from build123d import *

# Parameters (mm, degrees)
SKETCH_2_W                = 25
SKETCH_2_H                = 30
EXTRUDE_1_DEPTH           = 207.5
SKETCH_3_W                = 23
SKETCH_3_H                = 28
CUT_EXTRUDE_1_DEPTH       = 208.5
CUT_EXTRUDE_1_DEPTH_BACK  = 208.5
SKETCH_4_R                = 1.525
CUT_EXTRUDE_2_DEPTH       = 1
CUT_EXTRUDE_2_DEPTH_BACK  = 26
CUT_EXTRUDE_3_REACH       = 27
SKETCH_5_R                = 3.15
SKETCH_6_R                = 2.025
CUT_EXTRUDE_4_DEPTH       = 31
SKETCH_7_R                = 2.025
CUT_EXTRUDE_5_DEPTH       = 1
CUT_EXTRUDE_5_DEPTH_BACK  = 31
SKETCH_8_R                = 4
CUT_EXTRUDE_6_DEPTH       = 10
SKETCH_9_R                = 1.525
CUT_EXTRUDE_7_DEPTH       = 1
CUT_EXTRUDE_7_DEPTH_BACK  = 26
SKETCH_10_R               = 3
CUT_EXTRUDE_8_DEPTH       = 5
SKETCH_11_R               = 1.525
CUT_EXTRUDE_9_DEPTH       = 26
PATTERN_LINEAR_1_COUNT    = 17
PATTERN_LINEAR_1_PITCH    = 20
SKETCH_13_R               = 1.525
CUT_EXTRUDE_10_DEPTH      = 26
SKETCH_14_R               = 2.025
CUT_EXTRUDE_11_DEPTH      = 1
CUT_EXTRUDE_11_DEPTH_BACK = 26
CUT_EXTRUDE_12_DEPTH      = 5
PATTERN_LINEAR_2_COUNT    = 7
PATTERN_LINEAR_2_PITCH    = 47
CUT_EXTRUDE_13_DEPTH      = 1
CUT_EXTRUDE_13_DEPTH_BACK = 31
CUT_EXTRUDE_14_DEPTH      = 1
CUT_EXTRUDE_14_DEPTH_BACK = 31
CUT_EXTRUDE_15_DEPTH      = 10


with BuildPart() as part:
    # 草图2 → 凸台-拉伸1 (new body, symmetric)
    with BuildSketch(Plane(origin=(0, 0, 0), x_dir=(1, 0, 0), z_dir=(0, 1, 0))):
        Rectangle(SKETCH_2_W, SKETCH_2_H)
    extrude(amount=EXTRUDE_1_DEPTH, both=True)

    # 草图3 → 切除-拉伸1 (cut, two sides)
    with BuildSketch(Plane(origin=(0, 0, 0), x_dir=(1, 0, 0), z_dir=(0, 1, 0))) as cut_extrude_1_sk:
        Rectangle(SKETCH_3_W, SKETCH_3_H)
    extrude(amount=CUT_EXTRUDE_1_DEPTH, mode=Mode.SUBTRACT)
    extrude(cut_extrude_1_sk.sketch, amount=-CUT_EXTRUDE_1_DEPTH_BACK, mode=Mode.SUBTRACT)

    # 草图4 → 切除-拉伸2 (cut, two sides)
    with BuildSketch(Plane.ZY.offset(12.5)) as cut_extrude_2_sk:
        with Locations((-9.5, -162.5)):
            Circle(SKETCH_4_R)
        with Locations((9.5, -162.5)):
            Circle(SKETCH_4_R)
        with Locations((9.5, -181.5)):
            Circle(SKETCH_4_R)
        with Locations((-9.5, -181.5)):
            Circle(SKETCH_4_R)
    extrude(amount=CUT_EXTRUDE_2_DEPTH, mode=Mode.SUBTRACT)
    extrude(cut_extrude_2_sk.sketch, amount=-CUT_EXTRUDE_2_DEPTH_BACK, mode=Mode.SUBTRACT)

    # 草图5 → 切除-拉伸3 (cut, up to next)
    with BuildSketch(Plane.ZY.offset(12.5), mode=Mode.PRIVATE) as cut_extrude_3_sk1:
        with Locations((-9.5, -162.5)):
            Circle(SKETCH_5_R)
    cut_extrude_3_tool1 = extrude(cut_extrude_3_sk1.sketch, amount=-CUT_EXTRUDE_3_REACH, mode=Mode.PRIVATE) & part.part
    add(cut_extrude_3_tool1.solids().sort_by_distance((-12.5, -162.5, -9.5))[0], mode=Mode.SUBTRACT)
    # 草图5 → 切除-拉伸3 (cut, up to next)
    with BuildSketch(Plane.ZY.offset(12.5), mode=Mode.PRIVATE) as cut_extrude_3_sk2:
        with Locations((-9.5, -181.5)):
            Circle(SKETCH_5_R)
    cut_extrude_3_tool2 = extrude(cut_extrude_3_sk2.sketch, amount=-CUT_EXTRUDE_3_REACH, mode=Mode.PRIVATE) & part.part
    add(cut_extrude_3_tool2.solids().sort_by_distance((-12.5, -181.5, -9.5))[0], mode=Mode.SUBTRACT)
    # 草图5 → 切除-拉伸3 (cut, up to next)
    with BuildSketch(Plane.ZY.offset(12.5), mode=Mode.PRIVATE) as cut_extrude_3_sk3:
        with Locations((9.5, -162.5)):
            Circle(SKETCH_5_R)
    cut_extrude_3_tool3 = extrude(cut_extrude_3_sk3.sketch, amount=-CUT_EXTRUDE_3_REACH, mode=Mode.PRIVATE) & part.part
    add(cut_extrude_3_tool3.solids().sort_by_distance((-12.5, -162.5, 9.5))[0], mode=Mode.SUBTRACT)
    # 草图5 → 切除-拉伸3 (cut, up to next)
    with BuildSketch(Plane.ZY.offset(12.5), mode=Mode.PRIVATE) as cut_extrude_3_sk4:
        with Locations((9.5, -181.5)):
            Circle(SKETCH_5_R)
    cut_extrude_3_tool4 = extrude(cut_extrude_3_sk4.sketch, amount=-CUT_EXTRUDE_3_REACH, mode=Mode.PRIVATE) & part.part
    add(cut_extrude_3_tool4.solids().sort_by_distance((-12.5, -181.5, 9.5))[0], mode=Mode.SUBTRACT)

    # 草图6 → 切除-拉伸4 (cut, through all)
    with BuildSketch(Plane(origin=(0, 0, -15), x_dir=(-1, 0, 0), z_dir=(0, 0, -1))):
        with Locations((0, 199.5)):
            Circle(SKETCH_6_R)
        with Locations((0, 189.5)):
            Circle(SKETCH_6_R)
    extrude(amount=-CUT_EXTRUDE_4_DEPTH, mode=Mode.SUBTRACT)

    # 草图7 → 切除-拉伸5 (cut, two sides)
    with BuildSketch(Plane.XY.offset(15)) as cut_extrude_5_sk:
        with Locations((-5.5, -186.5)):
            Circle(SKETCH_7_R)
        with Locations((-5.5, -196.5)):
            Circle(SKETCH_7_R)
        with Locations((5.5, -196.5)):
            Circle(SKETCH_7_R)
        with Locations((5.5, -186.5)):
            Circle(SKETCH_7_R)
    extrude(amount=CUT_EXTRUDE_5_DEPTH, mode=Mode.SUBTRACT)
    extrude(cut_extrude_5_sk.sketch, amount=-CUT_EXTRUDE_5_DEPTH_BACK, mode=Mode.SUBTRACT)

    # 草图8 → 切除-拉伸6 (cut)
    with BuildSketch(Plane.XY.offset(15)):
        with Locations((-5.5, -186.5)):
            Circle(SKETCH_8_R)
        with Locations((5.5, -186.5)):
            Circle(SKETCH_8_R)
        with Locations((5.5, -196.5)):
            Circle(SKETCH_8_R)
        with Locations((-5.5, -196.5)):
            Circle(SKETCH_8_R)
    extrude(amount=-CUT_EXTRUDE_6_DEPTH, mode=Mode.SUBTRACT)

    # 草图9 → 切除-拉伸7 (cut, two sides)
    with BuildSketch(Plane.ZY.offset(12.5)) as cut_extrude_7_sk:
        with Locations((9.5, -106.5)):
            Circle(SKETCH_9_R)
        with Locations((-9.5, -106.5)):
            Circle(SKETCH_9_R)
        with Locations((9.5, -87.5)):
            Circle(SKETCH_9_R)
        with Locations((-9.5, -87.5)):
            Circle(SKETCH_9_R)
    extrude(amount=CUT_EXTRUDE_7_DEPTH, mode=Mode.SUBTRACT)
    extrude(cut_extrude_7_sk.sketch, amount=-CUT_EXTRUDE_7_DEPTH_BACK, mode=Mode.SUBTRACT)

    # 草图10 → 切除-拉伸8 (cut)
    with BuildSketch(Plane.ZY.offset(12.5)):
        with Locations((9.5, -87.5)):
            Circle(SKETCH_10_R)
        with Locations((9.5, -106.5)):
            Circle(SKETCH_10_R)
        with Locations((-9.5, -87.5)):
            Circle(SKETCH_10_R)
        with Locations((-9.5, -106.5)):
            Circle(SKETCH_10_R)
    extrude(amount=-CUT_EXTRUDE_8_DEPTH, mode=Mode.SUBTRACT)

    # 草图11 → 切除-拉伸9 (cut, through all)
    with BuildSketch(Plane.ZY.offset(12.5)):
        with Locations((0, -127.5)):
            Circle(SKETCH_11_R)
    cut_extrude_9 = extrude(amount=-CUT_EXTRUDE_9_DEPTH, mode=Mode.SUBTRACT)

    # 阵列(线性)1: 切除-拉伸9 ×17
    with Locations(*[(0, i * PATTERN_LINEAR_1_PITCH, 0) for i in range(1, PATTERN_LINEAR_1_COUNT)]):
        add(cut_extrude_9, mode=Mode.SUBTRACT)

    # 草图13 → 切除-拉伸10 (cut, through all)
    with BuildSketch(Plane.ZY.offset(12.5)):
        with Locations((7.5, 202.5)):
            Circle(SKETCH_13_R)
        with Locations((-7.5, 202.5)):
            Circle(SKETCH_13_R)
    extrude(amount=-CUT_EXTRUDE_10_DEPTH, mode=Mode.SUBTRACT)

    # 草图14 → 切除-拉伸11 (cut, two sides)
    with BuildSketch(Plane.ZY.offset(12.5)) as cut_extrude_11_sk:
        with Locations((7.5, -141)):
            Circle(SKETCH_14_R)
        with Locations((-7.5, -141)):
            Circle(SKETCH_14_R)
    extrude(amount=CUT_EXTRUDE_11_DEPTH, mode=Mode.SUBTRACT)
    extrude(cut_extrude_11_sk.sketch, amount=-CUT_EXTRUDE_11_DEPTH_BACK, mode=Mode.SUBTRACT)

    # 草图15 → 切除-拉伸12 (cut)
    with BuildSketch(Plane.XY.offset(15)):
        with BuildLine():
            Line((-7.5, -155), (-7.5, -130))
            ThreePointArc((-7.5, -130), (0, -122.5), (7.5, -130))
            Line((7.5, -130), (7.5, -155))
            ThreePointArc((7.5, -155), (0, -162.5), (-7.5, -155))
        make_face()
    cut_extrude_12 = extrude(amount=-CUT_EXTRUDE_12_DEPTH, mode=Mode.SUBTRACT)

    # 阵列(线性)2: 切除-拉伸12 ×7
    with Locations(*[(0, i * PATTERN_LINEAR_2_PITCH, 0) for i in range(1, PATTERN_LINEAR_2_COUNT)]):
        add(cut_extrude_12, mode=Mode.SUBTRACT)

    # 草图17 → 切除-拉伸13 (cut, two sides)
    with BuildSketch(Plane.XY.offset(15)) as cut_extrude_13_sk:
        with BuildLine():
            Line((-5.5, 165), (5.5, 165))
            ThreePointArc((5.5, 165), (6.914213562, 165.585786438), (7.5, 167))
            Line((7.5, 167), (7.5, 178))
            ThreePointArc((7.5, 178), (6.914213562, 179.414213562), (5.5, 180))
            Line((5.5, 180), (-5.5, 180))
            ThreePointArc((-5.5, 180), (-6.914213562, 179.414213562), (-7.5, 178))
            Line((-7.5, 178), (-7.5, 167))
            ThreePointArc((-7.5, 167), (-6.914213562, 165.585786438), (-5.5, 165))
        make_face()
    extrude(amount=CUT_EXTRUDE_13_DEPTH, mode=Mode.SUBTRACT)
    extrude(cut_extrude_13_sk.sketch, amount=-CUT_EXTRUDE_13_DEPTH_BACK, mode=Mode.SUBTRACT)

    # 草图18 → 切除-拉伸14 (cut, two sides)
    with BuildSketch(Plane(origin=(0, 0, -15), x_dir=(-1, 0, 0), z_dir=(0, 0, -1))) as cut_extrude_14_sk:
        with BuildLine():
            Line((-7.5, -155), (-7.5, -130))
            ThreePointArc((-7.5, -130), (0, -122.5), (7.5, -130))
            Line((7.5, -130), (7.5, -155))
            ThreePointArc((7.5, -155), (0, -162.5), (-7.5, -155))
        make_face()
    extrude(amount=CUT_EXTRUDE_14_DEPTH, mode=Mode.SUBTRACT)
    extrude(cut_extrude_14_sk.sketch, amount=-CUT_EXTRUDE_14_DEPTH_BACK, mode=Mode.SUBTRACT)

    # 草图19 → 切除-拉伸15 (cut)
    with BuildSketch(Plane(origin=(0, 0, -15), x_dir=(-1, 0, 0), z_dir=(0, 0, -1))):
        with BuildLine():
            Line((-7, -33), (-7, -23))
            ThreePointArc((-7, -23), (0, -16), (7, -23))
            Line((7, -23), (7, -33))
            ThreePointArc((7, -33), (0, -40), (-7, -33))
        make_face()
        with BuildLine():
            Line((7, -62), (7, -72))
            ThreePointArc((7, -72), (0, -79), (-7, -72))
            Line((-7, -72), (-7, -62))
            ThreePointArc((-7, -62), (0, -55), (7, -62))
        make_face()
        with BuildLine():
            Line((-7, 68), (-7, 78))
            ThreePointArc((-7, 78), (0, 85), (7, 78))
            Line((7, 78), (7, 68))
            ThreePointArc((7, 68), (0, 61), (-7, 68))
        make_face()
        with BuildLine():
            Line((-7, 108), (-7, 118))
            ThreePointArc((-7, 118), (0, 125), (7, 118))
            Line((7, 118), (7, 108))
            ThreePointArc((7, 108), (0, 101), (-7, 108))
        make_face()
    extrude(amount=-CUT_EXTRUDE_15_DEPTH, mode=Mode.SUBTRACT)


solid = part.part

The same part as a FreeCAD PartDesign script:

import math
import FreeCAD as App
import Part
import Sketcher
from FreeCAD import Vector


def add_polygon(sketch, points):
    """Adds a closed chain of lines whose ends are joined by coincident constraints."""
    first, n = sketch.GeometryCount, len(points)
    for a, b in zip(points, points[1:] + points[:1]):
        sketch.addGeometry(Part.LineSegment(App.Vector(*a, 0), App.Vector(*b, 0)), False)
    for i in range(n):
        sketch.addConstraint(Sketcher.Constraint("Coincident", first + i, 2, first + (i + 1) % n, 1))

doc = App.newDocument("Part")
body = doc.addObject("PartDesign::Body", "Body")

# Sketch on XZ plane
sketch1 = doc.addObject("Sketcher::SketchObject", "Sketch")
body.addObject(sketch1)
sketch1.AttachmentSupport = (doc.XZ_Plane, [""])
sketch1.MapMode = "FlatFace"
add_polygon(sketch1, [(-12, -15), (-12, 15), (12, 15), (12, -15)])  # lines 0-3
sketch1.addConstraint([
    Sketcher.Constraint("Vertical", 0),
    Sketcher.Constraint("Horizontal", 1),
    Sketcher.Constraint("Vertical", 2),
    Sketcher.Constraint("Horizontal", 3),
    Sketcher.Constraint("Symmetric", 0, 2, 2, 2, -1, 1),
    Sketcher.Constraint("DistanceX", 1, 1, 1, 2, 25.0),
    Sketcher.Constraint("DistanceY", 0, 1, 0, 2, 30.0),
])
pad1 = doc.addObject("PartDesign::Pad", "Pad")
body.addObject(pad1)
pad1.Profile = sketch1
pad1.Length = 415
pad1.Midplane = True

# Sketch on XZ plane
sketch2 = doc.addObject("Sketcher::SketchObject", "Sketch001")
body.addObject(sketch2)
sketch2.AttachmentSupport = (doc.XZ_Plane, [""])
sketch2.MapMode = "FlatFace"
add_polygon(sketch2, [(-12, -14), (-12, 14), (12, 14), (12, -14)])  # lines 0-3
sketch2.addConstraint([
    Sketcher.Constraint("Vertical", 0),
    Sketcher.Constraint("Horizontal", 1),
    Sketcher.Constraint("Vertical", 2),
    Sketcher.Constraint("Horizontal", 3),
    Sketcher.Constraint("Symmetric", 0, 2, 2, 2, -1, 1),
    Sketcher.Constraint("DistanceX", 1, 1, 1, 2, 23.0),
    Sketcher.Constraint("DistanceY", 0, 1, 0, 2, 28.0),
])
pocket1 = doc.addObject("PartDesign::Pocket", "Pocket")
body.addObject(pocket1)
pocket1.Profile = sketch2
pocket1.Type = "ThroughAll"
pocket1.Midplane = True

# Sketch on YZ plane
sketch3 = doc.addObject("Sketcher::SketchObject", "Sketch002")
body.addObject(sketch3)
sketch3.AttachmentSupport = (doc.YZ_Plane, [""])
sketch3.MapMode = "FlatFace"
sketch3.AttachmentOffset = App.Placement(Vector(0, 0, -12.5), App.Rotation())
sketch3.addGeometry([
    Part.Circle(Vector(-162.5, -9.5, 0), Vector(0, 0, 1), 1.5),
    Part.Circle(Vector(-162.5, 9.5, 0), Vector(0, 0, 1), 1.5),
    Part.Circle(Vector(-181.5, 9.5, 0), Vector(0, 0, 1), 1.5),
    Part.Circle(Vector(-181.5, -9.5, 0), Vector(0, 0, 1), 1.5),
], False)
sketch3.addConstraint([
    Sketcher.Constraint("Equal", 0, 1),
    Sketcher.Constraint("Equal", 1, 2),
    Sketcher.Constraint("Equal", 2, 3),
    Sketcher.Constraint("Symmetric", 0, 3, 1, 3, -1),
    Sketcher.Constraint("Symmetric", 2, 3, 3, 3, -1),
    Sketcher.Constraint("Horizontal", 1, 3, 2, 3),
    Sketcher.Constraint("Diameter", 0, 3.05),
    Sketcher.Constraint("DistanceY", 0, 3, 1, 3, 19.0),
    Sketcher.Constraint("DistanceX", 2, 3, 1, 3, 19.0),
    Sketcher.Constraint("DistanceX", 0, 3, -1, 1, 162.5),
])
pocket2 = doc.addObject("PartDesign::Pocket", "Pocket001")
body.addObject(pocket2)
pocket2.Profile = sketch3
pocket2.Type = "ThroughAll"
pocket2.Midplane = True

# Sketch on YZ plane
sketch4 = doc.addObject("Sketcher::SketchObject", "Sketch003")
body.addObject(sketch4)
sketch4.AttachmentSupport = (doc.YZ_Plane, [""])
sketch4.MapMode = "FlatFace"
sketch4.AttachmentOffset = App.Placement(Vector(0, 0, -12.5), App.Rotation())
sketch4.addGeometry(Part.Circle(Vector(-162.5, -9.5, 0), Vector(0, 0, 1), 3.1), False)
sketch4.addConstraint([
    Sketcher.Constraint("Diameter", 0, 6.3),
    Sketcher.Constraint("DistanceX", 0, 3, -1, 1, 162.5),
    Sketcher.Constraint("DistanceY", 0, 3, -1, 1, 9.5),
])
pocket3 = doc.addObject("PartDesign::Pocket", "Pocket002")
body.addObject(pocket3)
pocket3.Profile = sketch4
pocket3.Length = 1
pocket3.Reversed = True

# Sketch on YZ plane
sketch5 = doc.addObject("Sketcher::SketchObject", "Sketch004")
body.addObject(sketch5)
sketch5.AttachmentSupport = (doc.YZ_Plane, [""])
sketch5.MapMode = "FlatFace"
sketch5.AttachmentOffset = App.Placement(Vector(0, 0, -12.5), App.Rotation())
sketch5.addGeometry(Part.Circle(Vector(-181.5, -9.5, 0), Vector(0, 0, 1), 3.1), False)
sketch5.addConstraint([
    Sketcher.Constraint("Diameter", 0, 6.3),
    Sketcher.Constraint("DistanceX", 0, 3, -1, 1, 181.5),
    Sketcher.Constraint("DistanceY", 0, 3, -1, 1, 9.5),
])
pocket4 = doc.addObject("PartDesign::Pocket", "Pocket003")
body.addObject(pocket4)
pocket4.Profile = sketch5
pocket4.Length = 1
pocket4.Reversed = True

# Sketch on YZ plane
sketch6 = doc.addObject("Sketcher::SketchObject", "Sketch005")
body.addObject(sketch6)
sketch6.AttachmentSupport = (doc.YZ_Plane, [""])
sketch6.MapMode = "FlatFace"
sketch6.AttachmentOffset = App.Placement(Vector(0, 0, -12.5), App.Rotation())
sketch6.addGeometry(Part.Circle(Vector(-162.5, 9.5, 0), Vector(0, 0, 1), 3.1), False)
sketch6.addConstraint([
    Sketcher.Constraint("Diameter", 0, 6.3),
    Sketcher.Constraint("DistanceX", 0, 3, -1, 1, 162.5),
    Sketcher.Constraint("DistanceY", -1, 1, 0, 3, 9.5),
])
pocket5 = doc.addObject("PartDesign::Pocket", "Pocket004")
body.addObject(pocket5)
pocket5.Profile = sketch6
pocket5.Length = 1
pocket5.Reversed = True

# Sketch on YZ plane
sketch7 = doc.addObject("Sketcher::SketchObject", "Sketch006")
body.addObject(sketch7)
sketch7.AttachmentSupport = (doc.YZ_Plane, [""])
sketch7.MapMode = "FlatFace"
sketch7.AttachmentOffset = App.Placement(Vector(0, 0, -12.5), App.Rotation())
sketch7.addGeometry(Part.Circle(Vector(-181.5, 9.5, 0), Vector(0, 0, 1), 3.1), False)
sketch7.addConstraint([
    Sketcher.Constraint("Diameter", 0, 6.3),
    Sketcher.Constraint("DistanceX", 0, 3, -1, 1, 181.5),
    Sketcher.Constraint("DistanceY", -1, 1, 0, 3, 9.5),
])
pocket6 = doc.addObject("PartDesign::Pocket", "Pocket005")
body.addObject(pocket6)
pocket6.Profile = sketch7
pocket6.Length = 1
pocket6.Reversed = True

# Sketch on XY plane
sketch8 = doc.addObject("Sketcher::SketchObject", "Sketch007")
body.addObject(sketch8)
sketch8.AttachmentSupport = (doc.XY_Plane, [""])
sketch8.MapMode = "FlatFace"
sketch8.AttachmentOffset = App.Placement(Vector(0, 0, -15), App.Rotation())
sketch8.addGeometry([
    Part.Circle(Vector(0, 199.5, 0), Vector(0, 0, 1), 2),
    Part.Circle(Vector(0, 189.5, 0), Vector(0, 0, 1), 2),
], False)
sketch8.addConstraint([
    Sketcher.Constraint("Equal", 0, 1),
    Sketcher.Constraint("PointOnObject", 0, 3, -2),
    Sketcher.Constraint("PointOnObject", 1, 3, -2),
    Sketcher.Constraint("Diameter", 0, 4.05),
    Sketcher.Constraint("DistanceY", 1, 3, 0, 3, 10.0),
    Sketcher.Constraint("DistanceY", -1, 1, 0, 3, 199.5),
])
pocket7 = doc.addObject("PartDesign::Pocket", "Pocket006")
body.addObject(pocket7)
pocket7.Profile = sketch8
pocket7.Type = "ThroughAll"
pocket7.Reversed = True

# Sketch on XY plane
sketch9 = doc.addObject("Sketcher::SketchObject", "Sketch008")
body.addObject(sketch9)
sketch9.AttachmentSupport = (doc.XY_Plane, [""])
sketch9.MapMode = "FlatFace"
sketch9.AttachmentOffset = App.Placement(Vector(0, 0, 15), App.Rotation())
sketch9.addGeometry([
    Part.Circle(Vector(-5.5, -186.5, 0), Vector(0, 0, 1), 2),
    Part.Circle(Vector(-5.5, -196.5, 0), Vector(0, 0, 1), 2),
    Part.Circle(Vector(5.5, -196.5, 0), Vector(0, 0, 1), 2),
    Part.Circle(Vector(5.5, -186.5, 0), Vector(0, 0, 1), 2),
], False)
sketch9.addConstraint([
    Sketcher.Constraint("Equal", 0, 1),
    Sketcher.Constraint("Equal", 1, 2),
    Sketcher.Constraint("Equal", 2, 3),
    Sketcher.Constraint("Symmetric", 1, 3, 2, 3, -2),
    Sketcher.Constraint("Symmetric", 0, 3, 3, 3, -2),
    Sketcher.Constraint("Vertical", 0, 3, 1, 3),
    Sketcher.Constraint("Diameter", 0, 4.05),
    Sketcher.Constraint("DistanceY", 1, 3, 0, 3, 10.0),
    Sketcher.Constraint("DistanceX", 1, 3, 2, 3, 11.0),
    Sketcher.Constraint("DistanceY", 0, 3, -1, 1, 186.5),
])
pocket8 = doc.addObject("PartDesign::Pocket", "Pocket007")
body.addObject(pocket8)
pocket8.Profile = sketch9
pocket8.Type = "ThroughAll"
pocket8.Midplane = True

# Sketch on XY plane
sketch10 = doc.addObject("Sketcher::SketchObject", "Sketch009")
body.addObject(sketch10)
sketch10.AttachmentSupport = (doc.XY_Plane, [""])
sketch10.MapMode = "FlatFace"
sketch10.AttachmentOffset = App.Placement(Vector(0, 0, 15), App.Rotation())
sketch10.addGeometry([
    Part.Circle(Vector(-5.5, -186.5, 0), Vector(0, 0, 1), 4),
    Part.Circle(Vector(5.5, -186.5, 0), Vector(0, 0, 1), 4),
    Part.Circle(Vector(5.5, -196.5, 0), Vector(0, 0, 1), 4),
    Part.Circle(Vector(-5.5, -196.5, 0), Vector(0, 0, 1), 4),
], False)
sketch10.addConstraint([
    Sketcher.Constraint("Equal", 0, 1),
    Sketcher.Constraint("Equal", 1, 2),
    Sketcher.Constraint("Equal", 2, 3),
    Sketcher.Constraint("Symmetric", 0, 3, 1, 3, -2),
    Sketcher.Constraint("Symmetric", 2, 3, 3, 3, -2),
    Sketcher.Constraint("Vertical", 1, 3, 2, 3),
    Sketcher.Constraint("Diameter", 0, 8.0),
    Sketcher.Constraint("DistanceX", 0, 3, 1, 3, 11.0),
    Sketcher.Constraint("DistanceY", 2, 3, 1, 3, 10.0),
    Sketcher.Constraint("DistanceY", 0, 3, -1, 1, 186.5),
])
pocket9 = doc.addObject("PartDesign::Pocket", "Pocket008")
body.addObject(pocket9)
pocket9.Profile = sketch10
pocket9.Length = 10

# Sketch on YZ plane
sketch11 = doc.addObject("Sketcher::SketchObject", "Sketch010")
body.addObject(sketch11)
sketch11.AttachmentSupport = (doc.YZ_Plane, [""])
sketch11.MapMode = "FlatFace"
sketch11.AttachmentOffset = App.Placement(Vector(0, 0, -12.5), App.Rotation())
sketch11.addGeometry([
    Part.Circle(Vector(-106.5, 9.5, 0), Vector(0, 0, 1), 1.5),
    Part.Circle(Vector(-106.5, -9.5, 0), Vector(0, 0, 1), 1.5),
    Part.Circle(Vector(-87.5, 9.5, 0), Vector(0, 0, 1), 1.5),
    Part.Circle(Vector(-87.5, -9.5, 0), Vector(0, 0, 1), 1.5),
], False)
sketch11.addConstraint([
    Sketcher.Constraint("Equal", 0, 1),
    Sketcher.Constraint("Equal", 1, 2),
    Sketcher.Constraint("Equal", 2, 3),
    Sketcher.Constraint("Symmetric", 0, 3, 1, 3, -1),
    Sketcher.Constraint("Symmetric", 2, 3, 3, 3, -1),
    Sketcher.Constraint("Horizontal", 0, 3, 2, 3),
    Sketcher.Constraint("Diameter", 0, 3.05),
    Sketcher.Constraint("DistanceY", 1, 3, 0, 3, 19.0),
    Sketcher.Constraint("DistanceX", 0, 3, 2, 3, 19.0),
    Sketcher.Constraint("DistanceX", 0, 3, -1, 1, 106.5),
])
pocket10 = doc.addObject("PartDesign::Pocket", "Pocket009")
body.addObject(pocket10)
pocket10.Profile = sketch11
pocket10.Type = "ThroughAll"
pocket10.Midplane = True

# Sketch on YZ plane
sketch12 = doc.addObject("Sketcher::SketchObject", "Sketch011")
body.addObject(sketch12)
sketch12.AttachmentSupport = (doc.YZ_Plane, [""])
sketch12.MapMode = "FlatFace"
sketch12.AttachmentOffset = App.Placement(Vector(0, 0, -12.5), App.Rotation())
sketch12.addGeometry([
    Part.Circle(Vector(-87.5, 9.5, 0), Vector(0, 0, 1), 3),
    Part.Circle(Vector(-106.5, 9.5, 0), Vector(0, 0, 1), 3),
    Part.Circle(Vector(-87.5, -9.5, 0), Vector(0, 0, 1), 3),
    Part.Circle(Vector(-106.5, -9.5, 0), Vector(0, 0, 1), 3),
], False)
sketch12.addConstraint([
    Sketcher.Constraint("Equal", 0, 1),
    Sketcher.Constraint("Equal", 1, 2),
    Sketcher.Constraint("Equal", 2, 3),
    Sketcher.Constraint("Symmetric", 0, 3, 2, 3, -1),
    Sketcher.Constraint("Symmetric", 1, 3, 3, 3, -1),
    Sketcher.Constraint("Horizontal", 0, 3, 1, 3),
    Sketcher.Constraint("Diameter", 0, 6.0),
    Sketcher.Constraint("DistanceX", 1, 3, 0, 3, 19.0),
    Sketcher.Constraint("DistanceY", 2, 3, 0, 3, 19.0),
    Sketcher.Constraint("DistanceX", 0, 3, -1, 1, 87.5),
])
pocket11 = doc.addObject("PartDesign::Pocket", "Pocket010")
body.addObject(pocket11)
pocket11.Profile = sketch12
pocket11.Length = 5
pocket11.Reversed = True

# Sketch on YZ plane
sketch13 = doc.addObject("Sketcher::SketchObject", "Sketch012")
body.addObject(sketch13)
sketch13.AttachmentSupport = (doc.YZ_Plane, [""])
sketch13.MapMode = "FlatFace"
sketch13.AttachmentOffset = App.Placement(Vector(0, 0, -12.5), App.Rotation())
sketch13.addGeometry(Part.Circle(Vector(-127.5, 0, 0), Vector(0, 0, 1), 1.5), False)
sketch13.addConstraint([
    Sketcher.Constraint("PointOnObject", 0, 3, -1),
    Sketcher.Constraint("Diameter", 0, 3.05),
    Sketcher.Constraint("DistanceX", 0, 3, -1, 1, 127.5),
])
pocket12 = doc.addObject("PartDesign::Pocket", "Pocket011")
body.addObject(pocket12)
pocket12.Profile = sketch13
pocket12.Type = "ThroughAll"
pocket12.Reversed = True
doc.recompute()

linearpattern = doc.addObject("PartDesign::LinearPattern", "LinearPattern")
body.addObject(linearpattern)
linearpattern.Originals = [pocket12]
linearpattern.Direction = (doc.Y_Axis, [""])
linearpattern.Mode = "offset"
linearpattern.Offset = 20
linearpattern.Occurrences = 17
body.Tip = linearpattern

# Sketch on YZ plane
sketch14 = doc.addObject("Sketcher::SketchObject", "Sketch013")
body.addObject(sketch14)
sketch14.AttachmentSupport = (doc.YZ_Plane, [""])
sketch14.MapMode = "FlatFace"
sketch14.AttachmentOffset = App.Placement(Vector(0, 0, -12.5), App.Rotation())
sketch14.addGeometry([
    Part.Circle(Vector(202.5, 7.5, 0), Vector(0, 0, 1), 1.5),
    Part.Circle(Vector(202.5, -7.5, 0), Vector(0, 0, 1), 1.5),
], False)
sketch14.addConstraint([
    Sketcher.Constraint("Equal", 0, 1),
    Sketcher.Constraint("Symmetric", 0, 3, 1, 3, -1),
    Sketcher.Constraint("Diameter", 0, 3.05),
    Sketcher.Constraint("DistanceY", 1, 3, 0, 3, 15.0),
    Sketcher.Constraint("DistanceX", -1, 1, 0, 3, 202.5),
])
pocket13 = doc.addObject("PartDesign::Pocket", "Pocket012")
body.addObject(pocket13)
pocket13.Profile = sketch14
pocket13.Type = "ThroughAll"
pocket13.Reversed = True

# Sketch on YZ plane
sketch15 = doc.addObject("Sketcher::SketchObject", "Sketch014")
body.addObject(sketch15)
sketch15.AttachmentSupport = (doc.YZ_Plane, [""])
sketch15.MapMode = "FlatFace"
sketch15.AttachmentOffset = App.Placement(Vector(0, 0, -12.5), App.Rotation())
sketch15.addGeometry([
    Part.Circle(Vector(-141, 7.5, 0), Vector(0, 0, 1), 2),
    Part.Circle(Vector(-141, -7.5, 0), Vector(0, 0, 1), 2),
], False)
sketch15.addConstraint([
    Sketcher.Constraint("Equal", 0, 1),
    Sketcher.Constraint("Symmetric", 0, 3, 1, 3, -1),
    Sketcher.Constraint("Diameter", 0, 4.05),
    Sketcher.Constraint("DistanceX", 0, 3, -1, 1, 141.0),
    Sketcher.Constraint("DistanceY", 1, 3, 0, 3, 15.0),
])
pocket14 = doc.addObject("PartDesign::Pocket", "Pocket013")
body.addObject(pocket14)
pocket14.Profile = sketch15
pocket14.Type = "ThroughAll"
pocket14.Midplane = True

# Sketch on XY plane
sketch16 = doc.addObject("Sketcher::SketchObject", "Sketch015")
body.addObject(sketch16)
sketch16.AttachmentSupport = (doc.XY_Plane, [""])
sketch16.MapMode = "FlatFace"
sketch16.AttachmentOffset = App.Placement(Vector(0, 0, 15), App.Rotation())
sketch16.addGeometry([
    Part.LineSegment(Vector(-8, -130, 0), Vector(-8, -155, 0)),
    Part.ArcOfCircle(Part.Circle(Vector(0, -155, 0), Vector(0, 0, 1), 8), math.radians(180), math.radians(360)),
    Part.LineSegment(Vector(8, -155, 0), Vector(8, -130, 0)),
    Part.ArcOfCircle(Part.Circle(Vector(0, -130, 0), Vector(0, 0, 1), 8), math.radians(0), math.radians(180)),
], False)
sketch16.addConstraint([
    Sketcher.Constraint("Tangent", 0, 2, 1, 1),
    Sketcher.Constraint("Tangent", 1, 2, 2, 1),
    Sketcher.Constraint("Tangent", 2, 2, 3, 1),
    Sketcher.Constraint("Tangent", 3, 2, 0, 1),
    Sketcher.Constraint("Vertical", 0),
    Sketcher.Constraint("Vertical", 2),
    Sketcher.Constraint("PointOnObject", 1, 3, -2),
    Sketcher.Constraint("Radius", 1, 7.5),
    Sketcher.Constraint("DistanceY", 0, 2, 0, 1, 25.0),
    Sketcher.Constraint("DistanceY", 1, 3, -1, 1, 155.0),
])
pocket15 = doc.addObject("PartDesign::Pocket", "Pocket014")
body.addObject(pocket15)
pocket15.Profile = sketch16
pocket15.Length = 5
doc.recompute()

linearpattern2 = doc.addObject("PartDesign::LinearPattern", "LinearPattern001")
body.addObject(linearpattern2)
linearpattern2.Originals = [pocket15]
linearpattern2.Direction = (doc.Y_Axis, [""])
linearpattern2.Mode = "offset"
linearpattern2.Offset = 47
linearpattern2.Occurrences = 7
body.Tip = linearpattern2

# Sketch on XY plane
sketch17 = doc.addObject("Sketcher::SketchObject", "Sketch016")
body.addObject(sketch17)
sketch17.AttachmentSupport = (doc.XY_Plane, [""])
sketch17.MapMode = "FlatFace"
sketch17.AttachmentOffset = App.Placement(Vector(0, 0, 15), App.Rotation())
sketch17.addGeometry([
    Part.LineSegment(Vector(-5.5, 165, 0), Vector(5.5, 165, 0)),  # 0
    Part.ArcOfCircle(Part.Circle(Vector(5.5, 167, 0), Vector(0, 0, 1), 2), math.radians(-90), math.radians(0)),  # 1
    Part.LineSegment(Vector(7.5, 167, 0), Vector(7.5, 178, 0)),  # 2
    Part.ArcOfCircle(Part.Circle(Vector(5.5, 178, 0), Vector(0, 0, 1), 2), math.radians(0), math.radians(90)),  # 3
    Part.LineSegment(Vector(5.5, 180, 0), Vector(-5.5, 180, 0)),  # 4
    Part.ArcOfCircle(Part.Circle(Vector(-5.5, 178, 0), Vector(0, 0, 1), 2), math.radians(90), math.radians(180)),  # 5
    Part.LineSegment(Vector(-7.5, 178, 0), Vector(-7.5, 167, 0)),  # 6
    Part.ArcOfCircle(Part.Circle(Vector(-5.5, 167, 0), Vector(0, 0, 1), 2), math.radians(-180), math.radians(-90)),  # 7
], False)
sketch17.addConstraint([
    Sketcher.Constraint("Tangent", 0, 2, 1, 1),
    Sketcher.Constraint("Tangent", 1, 2, 2, 1),
    Sketcher.Constraint("Tangent", 2, 2, 3, 1),
    Sketcher.Constraint("Tangent", 3, 2, 4, 1),
    Sketcher.Constraint("Tangent", 4, 2, 5, 1),
    Sketcher.Constraint("Tangent", 5, 2, 6, 1),
    Sketcher.Constraint("Tangent", 6, 2, 7, 1),
    Sketcher.Constraint("Tangent", 7, 2, 0, 1),
    Sketcher.Constraint("Horizontal", 0),
    Sketcher.Constraint("Vertical", 2),
    Sketcher.Constraint("Horizontal", 4),
    Sketcher.Constraint("Vertical", 6),
    Sketcher.Constraint("Equal", 1, 3),
    Sketcher.Constraint("Equal", 3, 5),
    Sketcher.Constraint("Equal", 5, 7),
    Sketcher.Constraint("Equal", 4, 2),
    Sketcher.Constraint("Radius", 1, 2.0),
    Sketcher.Constraint("DistanceX", 0, 1, 0, 2, 11.0),
    Sketcher.Constraint("DistanceY", -1, 1, 1, 3, 167.0),
    Sketcher.Constraint("DistanceX", -1, 1, 1, 3, 5.5),
])
pocket16 = doc.addObject("PartDesign::Pocket", "Pocket015")
body.addObject(pocket16)
pocket16.Profile = sketch17
pocket16.Type = "ThroughAll"
pocket16.Midplane = True

# Sketch on XY plane
sketch18 = doc.addObject("Sketcher::SketchObject", "Sketch017")
body.addObject(sketch18)
sketch18.AttachmentSupport = (doc.XY_Plane, [""])
sketch18.MapMode = "FlatFace"
sketch18.AttachmentOffset = App.Placement(Vector(0, 0, -15), App.Rotation())
sketch18.addGeometry([
    Part.LineSegment(Vector(8, -130, 0), Vector(8, -155, 0)),
    Part.ArcOfCircle(Part.Circle(Vector(0, -155, 0), Vector(0, 0, 1), 8), math.radians(180), math.radians(360)),
    Part.LineSegment(Vector(-8, -155, 0), Vector(-8, -130, 0)),
    Part.ArcOfCircle(Part.Circle(Vector(0, -130, 0), Vector(0, 0, 1), 8), math.radians(0), math.radians(180)),
], False)
sketch18.addConstraint([
    Sketcher.Constraint("Tangent", 0, 2, 1, 2),
    Sketcher.Constraint("Tangent", 1, 1, 2, 1),
    Sketcher.Constraint("Tangent", 2, 2, 3, 2),
    Sketcher.Constraint("Tangent", 3, 1, 0, 1),
    Sketcher.Constraint("Vertical", 0),
    Sketcher.Constraint("Vertical", 2),
    Sketcher.Constraint("PointOnObject", 1, 3, -2),
    Sketcher.Constraint("Radius", 1, 7.5),
    Sketcher.Constraint("DistanceY", 0, 2, 0, 1, 25.0),
    Sketcher.Constraint("DistanceY", 1, 3, -1, 1, 155.0),
])
pocket17 = doc.addObject("PartDesign::Pocket", "Pocket016")
body.addObject(pocket17)
pocket17.Profile = sketch18
pocket17.Type = "ThroughAll"
pocket17.Midplane = True

# Sketch on XY plane
sketch19 = doc.addObject("Sketcher::SketchObject", "Sketch018")
body.addObject(sketch19)
sketch19.AttachmentSupport = (doc.XY_Plane, [""])
sketch19.MapMode = "FlatFace"
sketch19.AttachmentOffset = App.Placement(Vector(0, 0, -15), App.Rotation())
sketch19.addGeometry([
    Part.LineSegment(Vector(7, -23, 0), Vector(7, -33, 0)),  # 0
    Part.ArcOfCircle(Part.Circle(Vector(0, -33, 0), Vector(0, 0, 1), 7), math.radians(180), math.radians(360)),  # 1
    Part.LineSegment(Vector(-7, -33, 0), Vector(-7, -23, 0)),  # 2
    Part.ArcOfCircle(Part.Circle(Vector(0, -23, 0), Vector(0, 0, 1), 7), math.radians(0), math.radians(180)),  # 3
    Part.LineSegment(Vector(-7, -72, 0), Vector(-7, -62, 0)),  # 4
    Part.ArcOfCircle(Part.Circle(Vector(0, -62, 0), Vector(0, 0, 1), 7), math.radians(0), math.radians(180)),  # 5
    Part.LineSegment(Vector(7, -62, 0), Vector(7, -72, 0)),  # 6
    Part.ArcOfCircle(Part.Circle(Vector(0, -72, 0), Vector(0, 0, 1), 7), math.radians(180), math.radians(360)),  # 7
    Part.LineSegment(Vector(7, 78, 0), Vector(7, 68, 0)),  # 8
    Part.ArcOfCircle(Part.Circle(Vector(0, 68, 0), Vector(0, 0, 1), 7), math.radians(180), math.radians(360)),  # 9
    Part.LineSegment(Vector(-7, 68, 0), Vector(-7, 78, 0)),  # 10
    Part.ArcOfCircle(Part.Circle(Vector(0, 78, 0), Vector(0, 0, 1), 7), math.radians(0), math.radians(180)),  # 11
    Part.LineSegment(Vector(7, 118, 0), Vector(7, 108, 0)),  # 12
    Part.ArcOfCircle(Part.Circle(Vector(0, 108, 0), Vector(0, 0, 1), 7), math.radians(180), math.radians(360)),  # 13
    Part.LineSegment(Vector(-7, 108, 0), Vector(-7, 118, 0)),  # 14
    Part.ArcOfCircle(Part.Circle(Vector(0, 118, 0), Vector(0, 0, 1), 7), math.radians(0), math.radians(180)),  # 15
], False)
sketch19.addConstraint([
    Sketcher.Constraint("Tangent", 0, 2, 1, 2),
    Sketcher.Constraint("Tangent", 1, 1, 2, 1),
    Sketcher.Constraint("Tangent", 2, 2, 3, 2),
    Sketcher.Constraint("Tangent", 3, 1, 0, 1),
    Sketcher.Constraint("Tangent", 4, 2, 5, 2),
    Sketcher.Constraint("Tangent", 5, 1, 6, 1),
    Sketcher.Constraint("Tangent", 6, 2, 7, 2),
    Sketcher.Constraint("Tangent", 7, 1, 4, 1),
    Sketcher.Constraint("Tangent", 8, 2, 9, 2),
    Sketcher.Constraint("Tangent", 9, 1, 10, 1),
    Sketcher.Constraint("Tangent", 10, 2, 11, 2),
    Sketcher.Constraint("Tangent", 11, 1, 8, 1),
    Sketcher.Constraint("Tangent", 12, 2, 13, 2),
    Sketcher.Constraint("Tangent", 13, 1, 14, 1),
    Sketcher.Constraint("Tangent", 14, 2, 15, 2),
    Sketcher.Constraint("Tangent", 15, 1, 12, 1),
    Sketcher.Constraint("Vertical", 0),
    Sketcher.Constraint("Vertical", 2),
    Sketcher.Constraint("Vertical", 4),
    Sketcher.Constraint("Vertical", 6),
    Sketcher.Constraint("Vertical", 8),
    Sketcher.Constraint("Vertical", 10),
    Sketcher.Constraint("Vertical", 12),
    Sketcher.Constraint("Vertical", 14),
    Sketcher.Constraint("Equal", 3, 5),
    Sketcher.Constraint("Equal", 7, 9),
    Sketcher.Constraint("Equal", 11, 13),
    Sketcher.Constraint("PointOnObject", 1, 3, -2),
    Sketcher.Constraint("PointOnObject", 5, 3, -2),
    Sketcher.Constraint("PointOnObject", 9, 3, -2),
    Sketcher.Constraint("PointOnObject", 13, 3, -2),
    Sketcher.Constraint("Equal", 2, 4),
    Sketcher.Constraint("Equal", 6, 8),
    Sketcher.Constraint("Equal", 10, 12),
    Sketcher.Constraint("Radius", 1, 7.0),
    Sketcher.Constraint("DistanceY", 0, 2, 0, 1, 10.0),
    Sketcher.Constraint("DistanceY", 1, 3, -1, 1, 33.0),
    Sketcher.Constraint("DistanceY", 5, 3, -1, 1, 62.0),
    Sketcher.Constraint("DistanceY", -1, 1, 9, 3, 68.0),
    Sketcher.Constraint("DistanceY", -1, 1, 13, 3, 108.0),
])
pocket18 = doc.addObject("PartDesign::Pocket", "Pocket017")
body.addObject(pocket18)
pocket18.Profile = sketch19
pocket18.Length = 10
pocket18.Reversed = True

doc.recompute()
